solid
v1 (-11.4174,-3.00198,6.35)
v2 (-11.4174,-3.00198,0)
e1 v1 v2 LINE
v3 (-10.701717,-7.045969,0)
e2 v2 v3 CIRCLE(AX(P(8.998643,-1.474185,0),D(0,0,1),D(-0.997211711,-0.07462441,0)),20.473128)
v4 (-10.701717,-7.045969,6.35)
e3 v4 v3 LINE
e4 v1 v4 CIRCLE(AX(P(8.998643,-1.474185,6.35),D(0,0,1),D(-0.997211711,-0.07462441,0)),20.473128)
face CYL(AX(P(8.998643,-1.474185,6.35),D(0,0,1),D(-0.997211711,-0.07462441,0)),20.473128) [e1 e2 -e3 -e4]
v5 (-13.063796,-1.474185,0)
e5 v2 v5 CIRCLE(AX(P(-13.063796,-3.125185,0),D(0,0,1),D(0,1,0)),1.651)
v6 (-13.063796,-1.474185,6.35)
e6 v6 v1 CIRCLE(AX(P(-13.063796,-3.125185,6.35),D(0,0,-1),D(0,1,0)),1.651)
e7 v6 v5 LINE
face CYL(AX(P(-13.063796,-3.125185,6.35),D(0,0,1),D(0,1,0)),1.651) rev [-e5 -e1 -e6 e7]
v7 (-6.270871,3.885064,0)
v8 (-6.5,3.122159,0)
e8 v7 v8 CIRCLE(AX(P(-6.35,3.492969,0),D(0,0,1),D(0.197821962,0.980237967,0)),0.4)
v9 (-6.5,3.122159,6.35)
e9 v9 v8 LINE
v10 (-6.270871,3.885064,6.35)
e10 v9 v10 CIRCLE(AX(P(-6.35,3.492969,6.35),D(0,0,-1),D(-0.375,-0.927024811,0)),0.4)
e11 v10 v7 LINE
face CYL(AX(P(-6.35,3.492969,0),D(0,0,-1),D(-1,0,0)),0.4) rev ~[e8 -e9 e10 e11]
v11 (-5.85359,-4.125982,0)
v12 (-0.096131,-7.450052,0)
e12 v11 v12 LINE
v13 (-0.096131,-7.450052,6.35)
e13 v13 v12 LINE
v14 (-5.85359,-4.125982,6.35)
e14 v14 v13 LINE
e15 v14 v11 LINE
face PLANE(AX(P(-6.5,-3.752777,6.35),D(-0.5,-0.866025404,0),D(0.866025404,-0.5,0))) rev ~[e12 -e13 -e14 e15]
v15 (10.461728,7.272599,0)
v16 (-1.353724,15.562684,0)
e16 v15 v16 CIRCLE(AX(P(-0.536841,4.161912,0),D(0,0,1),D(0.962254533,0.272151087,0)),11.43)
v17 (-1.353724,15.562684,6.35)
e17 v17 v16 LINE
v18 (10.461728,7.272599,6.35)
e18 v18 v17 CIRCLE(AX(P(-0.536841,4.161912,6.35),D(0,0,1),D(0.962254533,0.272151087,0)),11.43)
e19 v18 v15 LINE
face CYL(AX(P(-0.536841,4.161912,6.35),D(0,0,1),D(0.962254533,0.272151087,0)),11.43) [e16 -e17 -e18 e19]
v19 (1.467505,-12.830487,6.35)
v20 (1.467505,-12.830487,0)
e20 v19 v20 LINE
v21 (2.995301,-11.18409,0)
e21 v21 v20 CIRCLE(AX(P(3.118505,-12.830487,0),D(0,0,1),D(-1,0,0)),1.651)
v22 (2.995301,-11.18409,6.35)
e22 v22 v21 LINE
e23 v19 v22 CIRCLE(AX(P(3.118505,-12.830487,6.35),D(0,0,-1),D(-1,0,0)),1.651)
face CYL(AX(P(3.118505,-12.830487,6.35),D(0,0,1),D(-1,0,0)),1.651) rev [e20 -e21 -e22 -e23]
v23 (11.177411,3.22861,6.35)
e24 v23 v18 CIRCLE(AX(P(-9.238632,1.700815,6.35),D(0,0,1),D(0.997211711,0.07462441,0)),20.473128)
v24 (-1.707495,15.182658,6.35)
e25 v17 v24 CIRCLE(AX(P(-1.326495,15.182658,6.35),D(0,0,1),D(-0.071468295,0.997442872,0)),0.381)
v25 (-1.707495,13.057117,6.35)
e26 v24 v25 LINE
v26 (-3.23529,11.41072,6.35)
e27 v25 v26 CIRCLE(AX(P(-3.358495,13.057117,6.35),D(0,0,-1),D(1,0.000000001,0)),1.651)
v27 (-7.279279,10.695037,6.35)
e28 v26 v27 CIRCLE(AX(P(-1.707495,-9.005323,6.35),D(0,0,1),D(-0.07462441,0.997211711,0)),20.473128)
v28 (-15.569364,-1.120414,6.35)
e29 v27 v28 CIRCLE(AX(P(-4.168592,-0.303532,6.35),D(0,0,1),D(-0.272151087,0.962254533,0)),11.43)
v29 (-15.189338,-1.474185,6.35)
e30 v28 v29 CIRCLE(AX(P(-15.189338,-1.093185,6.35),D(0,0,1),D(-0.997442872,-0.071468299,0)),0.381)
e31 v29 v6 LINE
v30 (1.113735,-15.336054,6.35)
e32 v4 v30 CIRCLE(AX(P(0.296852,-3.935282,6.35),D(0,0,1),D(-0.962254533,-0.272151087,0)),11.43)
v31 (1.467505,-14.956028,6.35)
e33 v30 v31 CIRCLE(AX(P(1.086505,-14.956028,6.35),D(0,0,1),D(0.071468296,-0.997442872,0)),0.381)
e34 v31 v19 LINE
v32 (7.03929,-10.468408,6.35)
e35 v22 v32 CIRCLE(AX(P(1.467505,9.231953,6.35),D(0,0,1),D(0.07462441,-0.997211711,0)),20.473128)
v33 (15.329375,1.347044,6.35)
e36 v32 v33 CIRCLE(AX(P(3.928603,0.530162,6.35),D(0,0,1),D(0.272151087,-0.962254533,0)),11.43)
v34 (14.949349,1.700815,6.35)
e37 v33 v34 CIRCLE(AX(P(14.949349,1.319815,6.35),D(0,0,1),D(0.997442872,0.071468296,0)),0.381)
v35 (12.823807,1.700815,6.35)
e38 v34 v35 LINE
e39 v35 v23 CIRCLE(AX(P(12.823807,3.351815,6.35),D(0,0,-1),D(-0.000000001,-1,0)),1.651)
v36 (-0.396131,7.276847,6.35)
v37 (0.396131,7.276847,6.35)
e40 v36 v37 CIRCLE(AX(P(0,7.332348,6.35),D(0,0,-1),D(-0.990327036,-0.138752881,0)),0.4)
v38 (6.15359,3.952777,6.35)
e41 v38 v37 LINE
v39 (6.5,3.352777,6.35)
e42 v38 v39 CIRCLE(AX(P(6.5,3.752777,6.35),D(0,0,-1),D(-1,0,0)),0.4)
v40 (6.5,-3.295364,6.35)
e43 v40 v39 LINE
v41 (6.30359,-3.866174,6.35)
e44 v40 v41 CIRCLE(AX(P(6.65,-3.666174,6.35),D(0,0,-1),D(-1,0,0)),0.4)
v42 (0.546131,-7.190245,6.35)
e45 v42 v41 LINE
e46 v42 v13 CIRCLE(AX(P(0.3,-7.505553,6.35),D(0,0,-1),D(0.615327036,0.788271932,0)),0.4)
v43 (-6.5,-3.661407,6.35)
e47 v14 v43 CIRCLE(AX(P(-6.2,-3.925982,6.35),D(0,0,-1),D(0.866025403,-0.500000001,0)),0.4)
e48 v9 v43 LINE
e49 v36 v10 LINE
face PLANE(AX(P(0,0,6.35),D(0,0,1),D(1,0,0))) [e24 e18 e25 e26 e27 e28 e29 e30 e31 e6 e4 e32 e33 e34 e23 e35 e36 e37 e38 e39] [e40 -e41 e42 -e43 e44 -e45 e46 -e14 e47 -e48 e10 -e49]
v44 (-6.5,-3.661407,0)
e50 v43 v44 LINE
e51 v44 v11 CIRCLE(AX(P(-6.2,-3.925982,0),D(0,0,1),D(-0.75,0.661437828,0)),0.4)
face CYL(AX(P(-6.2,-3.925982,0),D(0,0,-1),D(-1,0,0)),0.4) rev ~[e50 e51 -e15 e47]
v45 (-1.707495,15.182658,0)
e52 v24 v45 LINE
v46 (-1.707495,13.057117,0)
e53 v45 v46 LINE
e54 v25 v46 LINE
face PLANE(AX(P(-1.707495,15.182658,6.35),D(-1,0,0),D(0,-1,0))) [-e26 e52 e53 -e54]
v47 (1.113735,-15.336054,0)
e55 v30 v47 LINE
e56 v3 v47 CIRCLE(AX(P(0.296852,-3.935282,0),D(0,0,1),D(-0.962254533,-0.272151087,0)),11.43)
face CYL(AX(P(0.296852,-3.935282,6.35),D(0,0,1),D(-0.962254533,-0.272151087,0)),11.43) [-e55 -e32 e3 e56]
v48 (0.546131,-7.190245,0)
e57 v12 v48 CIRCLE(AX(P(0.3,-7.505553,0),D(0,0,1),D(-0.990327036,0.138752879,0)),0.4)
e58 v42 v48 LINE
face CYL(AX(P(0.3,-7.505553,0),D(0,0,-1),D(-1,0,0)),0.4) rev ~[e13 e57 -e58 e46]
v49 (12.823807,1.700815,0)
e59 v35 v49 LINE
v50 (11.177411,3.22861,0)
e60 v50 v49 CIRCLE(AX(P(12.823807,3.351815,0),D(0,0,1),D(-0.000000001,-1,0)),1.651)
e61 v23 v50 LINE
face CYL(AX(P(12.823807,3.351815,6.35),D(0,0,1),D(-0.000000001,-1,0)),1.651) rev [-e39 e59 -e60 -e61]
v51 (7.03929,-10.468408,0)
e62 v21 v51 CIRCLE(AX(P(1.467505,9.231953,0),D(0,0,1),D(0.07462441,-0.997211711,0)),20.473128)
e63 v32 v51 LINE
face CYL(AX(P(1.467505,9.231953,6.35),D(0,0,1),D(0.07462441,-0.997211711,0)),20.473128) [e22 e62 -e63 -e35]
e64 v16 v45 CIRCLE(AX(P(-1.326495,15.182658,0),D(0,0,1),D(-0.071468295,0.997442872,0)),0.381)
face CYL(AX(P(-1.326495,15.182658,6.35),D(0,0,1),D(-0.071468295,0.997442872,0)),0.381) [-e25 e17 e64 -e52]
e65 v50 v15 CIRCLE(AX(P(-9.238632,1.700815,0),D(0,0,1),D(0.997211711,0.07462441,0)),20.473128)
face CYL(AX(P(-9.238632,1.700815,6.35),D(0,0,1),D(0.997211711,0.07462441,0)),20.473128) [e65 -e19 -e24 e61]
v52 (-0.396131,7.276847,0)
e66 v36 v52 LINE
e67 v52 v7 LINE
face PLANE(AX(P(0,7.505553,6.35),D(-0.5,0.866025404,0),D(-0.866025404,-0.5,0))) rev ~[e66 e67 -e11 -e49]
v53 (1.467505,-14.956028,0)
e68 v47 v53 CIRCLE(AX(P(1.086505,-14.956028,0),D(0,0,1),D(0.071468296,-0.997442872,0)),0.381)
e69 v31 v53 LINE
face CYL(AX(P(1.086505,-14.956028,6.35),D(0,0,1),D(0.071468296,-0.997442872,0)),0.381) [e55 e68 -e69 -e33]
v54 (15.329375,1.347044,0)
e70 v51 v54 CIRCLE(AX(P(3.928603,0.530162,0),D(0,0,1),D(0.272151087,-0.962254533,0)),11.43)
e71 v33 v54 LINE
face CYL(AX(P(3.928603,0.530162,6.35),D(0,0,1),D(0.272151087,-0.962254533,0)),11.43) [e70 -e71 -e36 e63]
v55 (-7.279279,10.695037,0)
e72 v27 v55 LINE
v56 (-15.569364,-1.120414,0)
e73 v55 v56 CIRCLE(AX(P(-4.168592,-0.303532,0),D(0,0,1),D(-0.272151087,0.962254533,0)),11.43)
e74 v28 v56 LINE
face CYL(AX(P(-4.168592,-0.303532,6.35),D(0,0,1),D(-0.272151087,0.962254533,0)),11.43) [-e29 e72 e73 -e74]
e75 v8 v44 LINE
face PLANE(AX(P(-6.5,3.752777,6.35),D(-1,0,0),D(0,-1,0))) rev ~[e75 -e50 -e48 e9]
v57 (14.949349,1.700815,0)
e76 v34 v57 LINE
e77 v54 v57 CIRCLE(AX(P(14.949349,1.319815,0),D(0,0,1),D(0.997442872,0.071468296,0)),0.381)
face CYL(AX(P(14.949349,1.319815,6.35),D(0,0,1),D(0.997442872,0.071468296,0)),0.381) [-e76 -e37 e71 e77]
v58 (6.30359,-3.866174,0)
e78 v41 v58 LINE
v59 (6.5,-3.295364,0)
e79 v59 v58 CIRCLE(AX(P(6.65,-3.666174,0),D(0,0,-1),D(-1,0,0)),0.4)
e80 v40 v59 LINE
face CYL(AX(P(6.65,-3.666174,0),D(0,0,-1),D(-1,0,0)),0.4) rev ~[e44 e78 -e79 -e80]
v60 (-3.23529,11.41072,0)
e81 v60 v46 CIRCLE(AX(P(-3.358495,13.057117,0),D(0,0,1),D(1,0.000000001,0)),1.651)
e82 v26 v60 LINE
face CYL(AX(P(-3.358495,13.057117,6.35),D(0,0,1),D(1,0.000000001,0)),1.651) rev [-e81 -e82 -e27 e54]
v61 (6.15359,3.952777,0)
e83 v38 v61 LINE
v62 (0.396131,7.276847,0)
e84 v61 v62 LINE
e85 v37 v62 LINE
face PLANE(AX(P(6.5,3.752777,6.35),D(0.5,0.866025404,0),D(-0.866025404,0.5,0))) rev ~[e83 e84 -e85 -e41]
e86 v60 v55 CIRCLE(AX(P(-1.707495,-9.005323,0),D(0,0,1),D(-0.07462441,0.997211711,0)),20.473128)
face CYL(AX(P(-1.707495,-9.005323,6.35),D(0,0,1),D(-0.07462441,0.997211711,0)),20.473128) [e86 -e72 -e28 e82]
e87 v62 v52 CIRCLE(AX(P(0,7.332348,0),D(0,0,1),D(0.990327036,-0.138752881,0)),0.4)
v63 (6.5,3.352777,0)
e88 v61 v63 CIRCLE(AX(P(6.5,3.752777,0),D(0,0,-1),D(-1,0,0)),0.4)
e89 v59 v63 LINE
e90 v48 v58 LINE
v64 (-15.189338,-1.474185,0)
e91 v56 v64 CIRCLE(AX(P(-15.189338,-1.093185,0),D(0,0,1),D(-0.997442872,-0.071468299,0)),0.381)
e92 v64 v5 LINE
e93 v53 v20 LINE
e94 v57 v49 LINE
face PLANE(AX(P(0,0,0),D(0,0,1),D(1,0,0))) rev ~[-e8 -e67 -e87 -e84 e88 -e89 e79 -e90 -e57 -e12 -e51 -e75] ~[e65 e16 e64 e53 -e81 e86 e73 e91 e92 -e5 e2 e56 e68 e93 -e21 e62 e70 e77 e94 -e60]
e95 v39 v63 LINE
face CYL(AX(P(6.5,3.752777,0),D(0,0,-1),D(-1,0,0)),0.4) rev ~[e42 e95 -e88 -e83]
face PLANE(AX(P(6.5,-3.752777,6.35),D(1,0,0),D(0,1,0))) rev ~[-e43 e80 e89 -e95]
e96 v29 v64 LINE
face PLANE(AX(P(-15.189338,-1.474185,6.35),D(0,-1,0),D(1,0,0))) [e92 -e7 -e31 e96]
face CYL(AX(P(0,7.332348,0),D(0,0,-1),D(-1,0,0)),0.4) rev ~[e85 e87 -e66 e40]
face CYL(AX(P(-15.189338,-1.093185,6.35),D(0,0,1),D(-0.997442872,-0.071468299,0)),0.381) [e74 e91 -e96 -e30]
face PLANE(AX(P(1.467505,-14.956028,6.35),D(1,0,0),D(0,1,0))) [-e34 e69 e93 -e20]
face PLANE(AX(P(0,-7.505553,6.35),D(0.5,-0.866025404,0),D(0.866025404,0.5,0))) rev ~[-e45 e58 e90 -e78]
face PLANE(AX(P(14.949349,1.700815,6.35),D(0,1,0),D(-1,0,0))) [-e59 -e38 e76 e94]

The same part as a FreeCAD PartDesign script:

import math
import FreeCAD as App
import Part
import Sketcher
Q = App.Units.Quantity

doc = App.newDocument("Part")
body = doc.addObject("PartDesign::Body", "Body")

# Sketch on XY plane
sketch1 = body.newObject("Sketcher::SketchObject", "Sketch")
sketch1.AttachmentSupport = (doc.getObject("XY_Plane"), [""])
sketch1.MapMode = "FlatFace"
sketch1.addGeometry(Part.Circle(App.Vector(0, 0, 0), App.Vector(0, 0, 1), 16), False)
sketch1.addConstraint([
    Sketcher.Constraint("Coincident", 0, 3, -1, 1),
    Sketcher.Constraint("Diameter", 0, 32.0),
])
pad1 = body.newObject("PartDesign::Pad", "Pad")
pad1.Profile = sketch1
pad1.Length = Q("0.25 in")

# Sketch on XY plane
sketch2 = body.newObject("Sketcher::SketchObject", "Sketch001")
sketch2.AttachmentSupport = (doc.getObject("XY_Plane"), [""])
sketch2.MapMode = "FlatFace"
sketch2.AttachmentOffset = App.Placement(App.Vector(0, 0, 0.25 * 25.4), App.Rotation())
sketch2.addGeometry([
    Part.LineSegment(App.Vector(-21.57, 21.57, 0), App.Vector(-21.57, -21.57, 0)),  # 0
    Part.LineSegment(App.Vector(-21.57, -21.57, 0), App.Vector(21.57, -21.57, 0)),  # 1
    Part.LineSegment(App.Vector(21.57, -21.57, 0), App.Vector(21.57, 21.57, 0)),  # 2
    Part.LineSegment(App.Vector(21.57, 21.57, 0), App.Vector(-21.57, 21.57, 0)),  # 3
    Part.LineSegment(App.Vector(12.823807, 1.700815, 0), App.Vector(14.949349, 1.700815, 0)),  # 4
    Part.ArcOfCircle(Part.Circle(App.Vector(14.949349, 1.319815, 0), App.Vector(0, 0, 1), 0.381), math.radians(4.098326), math.radians(90)),  # 5
    Part.ArcOfCircle(Part.Circle(App.Vector(3.928603, 0.530162, 0), App.Vector(0, 0, 1), 11.43), math.radians(-74.207691), math.radians(4.098326)),  # 6
    Part.ArcOfCircle(Part.Circle(App.Vector(1.467505, 9.231953, 0), App.Vector(0, 0, 1), 20.473128), math.radians(-85.720358), math.radians(-74.207691)),  # 7
    Part.ArcOfCircle(Part.Circle(App.Vector(3.118505, -12.830487, 0), App.Vector(0, 0, 1), 1.651), math.radians(94.279642), math.radians(180)),  # 8
    Part.LineSegment(App.Vector(1.467505, -12.830487, 0), App.Vector(1.467505, -14.956028, 0)),  # 9
    Part.ArcOfCircle(Part.Circle(App.Vector(1.086505, -14.956028, 0), App.Vector(0, 0, 1), 0.381), math.radians(-85.901674), math.radians(0)),  # 10
    Part.ArcOfCircle(Part.Circle(App.Vector(0.296852, -3.935282, 0), App.Vector(0, 0, 1), 11.43), math.radians(-164.207691), math.radians(-85.901674)),  # 11
    Part.ArcOfCircle(Part.Circle(App.Vector(8.998643, -1.474185, 0), App.Vector(0, 0, 1), 20.473128), math.radians(-175.720358), math.radians(-164.207691)),  # 12
    Part.ArcOfCircle(Part.Circle(App.Vector(-13.063796, -3.125185, 0), App.Vector(0, 0, 1), 1.651), math.radians(4.279642), math.radians(90)),  # 13
    Part.LineSegment(App.Vector(-13.063796, -1.474185, 0), App.Vector(-15.189338, -1.474185, 0)),  # 14
    Part.ArcOfCircle(Part.Circle(App.Vector(-15.189338, -1.093185, 0), App.Vector(0, 0, 1), 0.381), math.radians(-175.901674), math.radians(-90)),  # 15
    Part.ArcOfCircle(Part.Circle(App.Vector(-4.168592, -0.303532, 0), App.Vector(0, 0, 1), 11.43), math.radians(105.792309), math.radians(184.098326)),  # 16
    Part.ArcOfCircle(Part.Circle(App.Vector(-1.707495, -9.005323, 0), App.Vector(0, 0, 1), 20.473128), math.radians(94.279642), math.radians(105.792309)),  # 17
    Part.ArcOfCircle(Part.Circle(App.Vector(-3.358495, 13.057117, 0), App.Vector(0, 0, 1), 1.651), math.radians(-85.720358), math.radians(0)),  # 18
    Part.LineSegment(App.Vector(-1.707495, 13.057117, 0), App.Vector(-1.707495, 15.182658, 0)),  # 19
    Part.ArcOfCircle(Part.Circle(App.Vector(-1.326495, 15.182658, 0), App.Vector(0, 0, 1), 0.381), math.radians(94.098326), math.radians(180)),  # 20
    Part.ArcOfCircle(Part.Circle(App.Vector(-0.536841, 4.161912, 0), App.Vector(0, 0, 1), 11.43), math.radians(15.792309), math.radians(94.098326)),  # 21
    Part.ArcOfCircle(Part.Circle(App.Vector(-9.238632, 1.700815, 0), App.Vector(0, 0, 1), 20.473128), math.radians(4.279642), math.radians(15.792309)),  # 22
    Part.ArcOfCircle(Part.Circle(App.Vector(12.823807, 3.351815, 0), App.Vector(0, 0, 1), 1.651), math.radians(-175.720358), math.radians(-90)),  # 23
], False)
sketch2.addConstraint([
    Sketcher.Constraint("Coincident", 0, 2, 1, 1),
    Sketcher.Constraint("Coincident", 1, 2, 2, 1),
    Sketcher.Constraint("Coincident", 2, 2, 3, 1),
    Sketcher.Constraint("Coincident", 3, 2, 0, 1),
    Sketcher.Constraint("Tangent", 4, 2, 5, 2),
    Sketcher.Constraint("Tangent", 5, 1, 6, 2),
    Sketcher.Constraint("Tangent", 6, 1, 7, 2),
    Sketcher.Constraint("Tangent", 7, 1, 8, 1),
    Sketcher.Constraint("Tangent", 8, 2, 9, 1),
    Sketcher.Constraint("Tangent", 9, 2, 10, 2),
    Sketcher.Constraint("Tangent", 10, 1, 11, 2),
    Sketcher.Constraint("Tangent", 11, 1, 12, 2),
    Sketcher.Constraint("Tangent", 12, 1, 13, 1),
    Sketcher.Constraint("Tangent", 13, 2, 14, 1),
    Sketcher.Constraint("Tangent", 14, 2, 15, 2),
    Sketcher.Constraint("Tangent", 15, 1, 16, 2),
    Sketcher.Constraint("Tangent", 16, 1, 17, 2),
    Sketcher.Constraint("Tangent", 17, 1, 18, 1),
    Sketcher.Constraint("Tangent", 18, 2, 19, 1),
    Sketcher.Constraint("Tangent", 19, 2, 20, 2),
    Sketcher.Constraint("Tangent", 20, 1, 21, 2),
    Sketcher.Constraint("Tangent", 21, 1, 22, 2),
    Sketcher.Constraint("Tangent", 22, 1, 23, 1),
    Sketcher.Constraint("Tangent", 23, 2, 4, 1),
    Sketcher.Constraint("Vertical", 0),
    Sketcher.Constraint("Horizontal", 1),
    Sketcher.Constraint("Vertical", 2),
    Sketcher.Constraint("Horizontal", 3),
    Sketcher.Constraint("Horizontal", 4),
    Sketcher.Constraint("Vertical", 9),
    Sketcher.Constraint("Horizontal", 14),
    Sketcher.Constraint("Vertical", 19),
    Sketcher.Constraint("Equal", 5, 10),
    Sketcher.Constraint("Equal", 6, 11),
    Sketcher.Constraint("Equal", 7, 12),
    Sketcher.Constraint("Equal", 8, 13),
    Sketcher.Constraint("Equal", 10, 15),
    Sketcher.Constraint("Equal", 11, 16),
    Sketcher.Constraint("Equal", 12, 17),
    Sketcher.Constraint("Equal", 13, 18),
    Sketcher.Constraint("Equal", 15, 20),
    Sketcher.Constraint("Equal", 16, 21),
    Sketcher.Constraint("Equal", 17, 22),
    Sketcher.Constraint("Equal", 18, 23),
    Sketcher.Constraint("Symmetric", 0, 2, 2, 2, -1, 1),
    Sketcher.Constraint("Horizontal", 22, 3, 4, 2),
    Sketcher.Constraint("Horizontal", 12, 3, 13, 2),
    Sketcher.Constraint("Vertical", 7, 3, 8, 2),
    Sketcher.Constraint("Vertical", 17, 3, 18, 2),
    Sketcher.Constraint("Equal", 4, 14),
    Sketcher.Constraint("Equal", 3, 0),
    Sketcher.Constraint("Equal", 14, 9),
    Sketcher.Constraint("Equal", 9, 19),
    Sketcher.Constraint("Radius", 6, Q("0.45 in")),
    Sketcher.Constraint("Radius", 5, Q("0.015 in")),
    Sketcher.Constraint("Radius", 8, Q("0.065 in")),
    Sketcher.Constraint("DistanceY", 12, 3, 5, 3, Q("0.11 in")),
    Sketcher.Constraint("DistanceX", 17, 3, 8, 3, Q("0.19 in")),
    Sketcher.Constraint("Radius", 7, 20.473128),
    Sketcher.Constraint("DistanceX", 1, 1, 1, 2, 43.14),
    Sketcher.Constraint("DistanceX", 4, 1, 4, 2, 2.125542),
    Sketcher.Constraint("DistanceX", -1, 1, 7, 1, 2.995301),
    Sketcher.Constraint("DistanceX", 12, 1, -1, 1, 11.4174),
    Sketcher.Constraint("DistanceY", -1, 1, 21, 1, 7.272599),
    Sketcher.Constraint("DistanceY", 8, 3, 5, 3, 14.150302),
    Sketcher.Constraint("DistanceX", 13, 3, 6, 3, 16.992399),
    Sketcher.Constraint("DistanceY", 11, 3, 18, 3, 16.992399),
])
pocket1 = body.newObject("PartDesign::Pocket", "Pocket")
pocket1.Profile = sketch2
pocket1.Type = "ThroughAll"

# Sketch on XY plane
sketch3 = body.newObject("Sketcher::SketchObject", "Sketch002")
sketch3.AttachmentSupport = (doc.getObject("XY_Plane"), [""])
sketch3.MapMode = "FlatFace"
sketch3.AttachmentOffset = App.Placement(App.Vector(0, 0, 0.25 * 25.4), App.Rotation())
sketch3.addGeometry([
    Part.LineSegment(App.Vector(0, 7.505553, 0), App.Vector(-6.5, 3.752777, 0)),  # 0
    Part.LineSegment(App.Vector(-6.5, 3.752777, 0), App.Vector(-6.5, -3.752777, 0)),  # 1
    Part.LineSegment(App.Vector(-6.5, -3.752777, 0), App.Vector(0, -7.505553, 0)),  # 2
    Part.LineSegment(App.Vector(0, -7.505553, 0), App.Vector(6.5, -3.752777, 0)),  # 3
    Part.LineSegment(App.Vector(6.5, -3.752777, 0), App.Vector(6.5, 3.752777, 0)),  # 4
    Part.LineSegment(App.Vector(6.5, 3.752777, 0), App.Vector(0, 7.505553, 0)),  # 5
], False)
sketch3.addConstraint([
    Sketcher.Constraint("Coincident", 0, 2, 1, 1),
    Sketcher.Constraint("Coincident", 1, 2, 2, 1),
    Sketcher.Constraint("Coincident", 2, 2, 3, 1),
    Sketcher.Constraint("Coincident", 3, 2, 4, 1),
    Sketcher.Constraint("Coincident", 4, 2, 5, 1),
    Sketcher.Constraint("Coincident", 5, 2, 0, 1),
    Sketcher.Constraint("Vertical", 1),
    Sketcher.Constraint("Vertical", 4),
    Sketcher.Constraint("Symmetric", 0, 2, 3, 2, -1, 1),
    Sketcher.Constraint("Symmetric", 2, 2, 5, 2, -1, 1),
    Sketcher.Constraint("PointOnObject", 2, 2, -2),
    Sketcher.Constraint("Parallel", 2, 5),
    Sketcher.Constraint("Horizontal", 1, 2, 3, 2),
    Sketcher.Constraint("Angle", 0, Q("-150 deg")),
    Sketcher.Constraint("DistanceX", 0, 2, -1, 1, 6.5),
    Sketcher.Constraint("DistanceY", 1, 2, 1, 1, 7.505554),
])
pocket2 = body.newObject("PartDesign::Pocket", "Pocket001")
pocket2.Profile = sketch3
pocket2.Type = "ThroughAll"

# Sketch on XY plane
sketch4 = body.newObject("Sketcher::SketchObject", "Sketch003")
sketch4.AttachmentSupport = (doc.getObject("XY_Plane"), [""])
sketch4.MapMode = "FlatFace"
sketch4.addGeometry(Part.Circle(App.Vector(6.5, 3.752777, 0), App.Vector(0, 0, 1), 0.4), False)
sketch4.addConstraint([
    Sketcher.Constraint("Diameter", 0, 0.8),
    Sketcher.Constraint("DistanceX", -1, 1, 0, 3, 6.5),
    Sketcher.Constraint("DistanceY", -1, 1, 0, 3, 3.752777),
])
pocket3 = body.newObject("PartDesign::Pocket", "Pocket002")
pocket3.Profile = sketch4
pocket3.Type = "UpToFirst"
pocket3.Reversed = True

# Sketch on XY plane
sketch5 = body.newObject("Sketcher::SketchObject", "Sketch004")
sketch5.AttachmentSupport = (doc.getObject("XY_Plane"), [""])
sketch5.MapMode = "FlatFace"
sketch5.addGeometry(Part.Circle(App.Vector(0, 7.332348, 0), App.Vector(0, 0, 1), 0.4), False)
sketch5.addConstraint([
    Sketcher.Constraint("PointOnObject", 0, 3, -2),
    Sketcher.Constraint("Diameter", 0, 0.8),
    Sketcher.Constraint("DistanceY", -1, 1, 0, 3, 7.332348),
])
pocket4 = body.newObject("PartDesign::Pocket", "Pocket003")
pocket4.Profile = sketch5
pocket4.Length = Q("0.25 in")
pocket4.Reversed = True

# Sketch on XY plane
sketch6 = body.newObject("Sketcher::SketchObject", "Sketch005")
sketch6.AttachmentSupport = (doc.getObject("XY_Plane"), [""])
sketch6.MapMode = "FlatFace"
sketch6.addGeometry(Part.Circle(App.Vector(-6.35, 3.492969, 0), App.Vector(0, 0, 1), 0.4), False)
sketch6.addConstraint([
    Sketcher.Constraint("Diameter", 0, 0.8),
    Sketcher.Constraint("DistanceX", 0, 3, -1, 1, Q("0.25 in")),
    Sketcher.Constraint("DistanceY", -1, 1, 0, 3, 3.492969),
])
pocket5 = body.newObject("PartDesign::Pocket", "Pocket004")
pocket5.Profile = sketch6
pocket5.Length = Q("0.25 in")
pocket5.Reversed = True

# Sketch on XY plane
sketch7 = body.newObject("Sketcher::SketchObject", "Sketch006")
sketch7.AttachmentSupport = (doc.getObject("XY_Plane"), [""])
sketch7.MapMode = "FlatFace"
sketch7.addGeometry(Part.Circle(App.Vector(-6.2, -3.925982, 0), App.Vector(0, 0, 1), 0.4), False)
sketch7.addConstraint([
    Sketcher.Constraint("Diameter", 0, 0.8),
    Sketcher.Constraint("DistanceX", 0, 3, -1, 1, 6.2),
    Sketcher.Constraint("DistanceY", 0, 3, -1, 1, 3.925982),
])
pocket6 = body.newObject("PartDesign::Pocket", "Pocket005")
pocket6.Profile = sketch7
pocket6.Type = "UpToFirst"
pocket6.Reversed = True

# Sketch on XY plane
sketch8 = body.newObject("Sketcher::SketchObject", "Sketch007")
sketch8.AttachmentSupport = (doc.getObject("XY_Plane"), [""])
sketch8.MapMode = "FlatFace"
sketch8.addGeometry(Part.Circle(App.Vector(0.3, -7.505553, 0), App.Vector(0, 0, 1), 0.4), False)
sketch8.addConstraint([
    Sketcher.Constraint("Diameter", 0, 0.8),
    Sketcher.Constraint("DistanceX", -1, 1, 0, 3, 0.3),
    Sketcher.Constraint("DistanceY", 0, 3, -1, 1, 7.505553),
])
pocket7 = body.newObject("PartDesign::Pocket", "Pocket006")
pocket7.Profile = sketch8
pocket7.Type = "UpToFirst"
pocket7.Reversed = True

# Sketch on XY plane
sketch9 = body.newObject("Sketcher::SketchObject", "Sketch008")
sketch9.AttachmentSupport = (doc.getObject("XY_Plane"), [""])
sketch9.MapMode = "FlatFace"
sketch9.addGeometry(Part.Circle(App.Vector(6.65, -3.666174, 0), App.Vector(0, 0, 1), 0.4), False)
sketch9.addConstraint([
    Sketcher.Constraint("Diameter", 0, 0.8),
    Sketcher.Constraint("DistanceX", -1, 1, 0, 3, 6.65),
    Sketcher.Constraint("DistanceY", 0, 3, -1, 1, 3.666174),
])
pocket8 = body.newObject("PartDesign::Pocket", "Pocket007")
pocket8.Profile = sketch9
pocket8.Type = "UpToFirst"
pocket8.Reversed = True

doc.recompute()
